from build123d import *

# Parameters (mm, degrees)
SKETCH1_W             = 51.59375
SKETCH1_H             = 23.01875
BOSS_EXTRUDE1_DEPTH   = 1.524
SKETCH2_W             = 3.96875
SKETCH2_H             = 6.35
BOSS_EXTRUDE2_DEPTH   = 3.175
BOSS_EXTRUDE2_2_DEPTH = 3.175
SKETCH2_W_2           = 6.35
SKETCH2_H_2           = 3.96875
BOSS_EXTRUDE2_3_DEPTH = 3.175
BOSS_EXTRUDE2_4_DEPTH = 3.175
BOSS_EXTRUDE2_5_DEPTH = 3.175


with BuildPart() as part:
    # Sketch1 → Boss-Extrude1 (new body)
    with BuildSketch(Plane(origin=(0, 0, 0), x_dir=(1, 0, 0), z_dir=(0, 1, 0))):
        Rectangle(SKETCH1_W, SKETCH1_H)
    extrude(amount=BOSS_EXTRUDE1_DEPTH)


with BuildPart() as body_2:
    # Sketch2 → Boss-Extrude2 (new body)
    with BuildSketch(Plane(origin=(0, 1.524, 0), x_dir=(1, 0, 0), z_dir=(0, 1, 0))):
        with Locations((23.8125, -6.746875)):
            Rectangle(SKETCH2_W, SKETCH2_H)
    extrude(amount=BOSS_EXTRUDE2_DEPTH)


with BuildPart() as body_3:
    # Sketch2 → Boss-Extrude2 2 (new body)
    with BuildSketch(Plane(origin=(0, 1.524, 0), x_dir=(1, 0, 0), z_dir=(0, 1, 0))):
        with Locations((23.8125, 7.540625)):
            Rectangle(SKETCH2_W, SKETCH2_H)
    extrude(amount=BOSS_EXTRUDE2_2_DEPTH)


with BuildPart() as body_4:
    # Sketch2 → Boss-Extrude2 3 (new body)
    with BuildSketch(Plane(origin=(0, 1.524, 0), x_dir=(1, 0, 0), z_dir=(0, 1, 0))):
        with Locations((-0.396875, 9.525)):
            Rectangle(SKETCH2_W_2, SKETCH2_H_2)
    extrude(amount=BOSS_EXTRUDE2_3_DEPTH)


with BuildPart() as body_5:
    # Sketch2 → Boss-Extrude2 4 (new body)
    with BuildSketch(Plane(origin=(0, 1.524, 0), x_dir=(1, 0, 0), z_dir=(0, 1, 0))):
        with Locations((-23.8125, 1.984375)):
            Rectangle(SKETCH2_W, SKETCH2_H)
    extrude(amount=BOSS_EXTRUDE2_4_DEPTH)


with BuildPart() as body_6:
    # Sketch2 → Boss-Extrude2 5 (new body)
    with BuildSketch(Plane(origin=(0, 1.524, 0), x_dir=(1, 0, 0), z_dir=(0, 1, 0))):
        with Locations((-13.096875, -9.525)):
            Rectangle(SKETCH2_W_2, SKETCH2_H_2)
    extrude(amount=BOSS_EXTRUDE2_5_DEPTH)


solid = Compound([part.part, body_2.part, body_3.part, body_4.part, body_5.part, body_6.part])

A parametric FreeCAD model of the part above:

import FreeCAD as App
import Part
import Sketcher
Q = App.Units.Quantity


def add_polygon(sketch, points):
    """Adds a closed chain of lines whose ends are joined by coincident constraints."""
    first, n = sketch.GeometryCount, len(points)
    for a, b in zip(points, points[1:] + points[:1]):
        sketch.addGeometry(Part.LineSegment(App.Vector(*a, 0), App.Vector(*b, 0)), False)
    for i in range(n):
        sketch.addConstraint(Sketcher.Constraint("Coincident", first + i, 2, first + (i + 1) % n, 1))

doc = App.newDocument("Part")
body = doc.addObject("PartDesign::Body", "Body")

sketch1 = body.newObject("Sketcher::SketchObject", "Sketch")
sketch1.AttachmentSupport = (doc.getObject("XZ_Plane"), [""])
sketch1.MapMode = "FlatFace"
add_polygon(sketch1, [(-25.796875, -11.509375), (-25.796875, 11.509375), (25.796875, 11.509375), (25.796875, -11.509375)])
sketch1.addConstraint([
    Sketcher.Constraint("Vertical", 0),
    Sketcher.Constraint("Horizontal", 1),
    Sketcher.Constraint("Vertical", 2),
    Sketcher.Constraint("Horizontal", 3),
    Sketcher.Constraint("Symmetric", 0, 2, 2, 2, -1, 1),
    Sketcher.Constraint("DistanceX", 1, 1, 1, 2, Q("2.03125 in")),
    Sketcher.Constraint("DistanceY", 0, 1, 0, 2, Q("0.90625 in")),
])
pad1 = body.newObject("PartDesign::Pad", "Pad")
pad1.Profile = sketch1
pad1.Length = Q("0.06 in")
pad1.Reversed = True
body2 = doc.addObject("PartDesign::Body", "Body001")

sketch2 = body2.newObject("Sketcher::SketchObject", "Sketch001")
sketch2.AttachmentSupport = (doc.getObject("XZ_Plane001"), [""])
sketch2.MapMode = "FlatFace"
sketch2.AttachmentOffset = App.Placement(App.Vector(0, 0, -0.06 * 25.4), App.Rotation())
add_polygon(sketch2, [(21.828125, 3.571875), (21.828125, 9.921875), (25.796875, 9.921875), (25.796875, 3.571875)])
sketch2.addConstraint([
    Sketcher.Constraint("Vertical", 0),
    Sketcher.Constraint("Horizontal", 1),
    Sketcher.Constraint("Vertical", 2),
    Sketcher.Constraint("Horizontal", 3),
    Sketcher.Constraint("DistanceY", 0, 1, 0, 2, Q("0.25 in")),
    Sketcher.Constraint("DistanceX", 1, 1, 1, 2, Q("0.15625 in")),
    Sketcher.Constraint("DistanceX", -1, 1, 0, 2, Q("0.859375 in")),
    Sketcher.Constraint("DistanceY", -1, 1, 0, 2, Q("0.390625 in")),
])
pad2 = body2.newObject("PartDesign::Pad", "Pad001")
pad2.Profile = sketch2
pad2.Length = Q("0.125 in")
pad2.Reversed = True
body3 = doc.addObject("PartDesign::Body", "Body002")

sketch3 = body3.newObject("Sketcher::SketchObject", "Sketch002")
sketch3.AttachmentSupport = (doc.getObject("XZ_Plane002"), [""])
sketch3.MapMode = "FlatFace"
sketch3.AttachmentOffset = App.Placement(App.Vector(0, 0, -0.06 * 25.4), App.Rotation())
add_polygon(sketch3, [(21.828125, -10.715625), (21.828125, -4.365625), (25.796875, -4.365625), (25.796875, -10.715625)])
sketch3.addConstraint([
    Sketcher.Constraint("Vertical", 0),
    Sketcher.Constraint("Horizontal", 1),
    Sketcher.Constraint("Vertical", 2),
    Sketcher.Constraint("Horizontal", 3),
    Sketcher.Constraint("DistanceY", 0, 1, 0, 2, Q("0.25 in")),
    Sketcher.Constraint("DistanceX", 1, 1, 1, 2, Q("0.15625 in")),
    Sketcher.Constraint("DistanceX", -1, 1, 0, 2, Q("0.859375 in")),
    Sketcher.Constraint("DistanceY", 0, 2, -1, 1, Q("0.171875 in")),
])
pad3 = body3.newObject("PartDesign::Pad", "Pad002")
pad3.Profile = sketch3
pad3.Length = Q("0.125 in")
pad3.Reversed = True
body4 = doc.addObject("PartDesign::Body", "Body003")

sketch4 = body4.newObject("Sketcher::SketchObject", "Sketch003")
sketch4.AttachmentSupport = (doc.getObject("XZ_Plane003"), [""])
sketch4.MapMode = "FlatFace"
sketch4.AttachmentOffset = App.Placement(App.Vector(0, 0, -0.06 * 25.4), App.Rotation())
add_polygon(sketch4, [(-3.571875, -11.509375), (-3.571875, -7.540625), (2.778125, -7.540625), (2.778125, -11.509375)])
sketch4.addConstraint([
    Sketcher.Constraint("Vertical", 0),
    Sketcher.Constraint("Horizontal", 1),
    Sketcher.Constraint("Vertical", 2),
    Sketcher.Constraint("Horizontal", 3),
    Sketcher.Constraint("DistanceX", 1, 1, 1, 2, Q("0.25 in")),
    Sketcher.Constraint("DistanceY", 0, 1, 0, 2, Q("0.15625 in")),
    Sketcher.Constraint("DistanceX", 0, 2, -1, 1, Q("0.140625 in")),
    Sketcher.Constraint("DistanceY", 0, 2, -1, 1, Q("0.296875 in")),
])
pad4 = body4.newObject("PartDesign::Pad", "Pad003")
pad4.Profile = sketch4
pad4.Length = Q("0.125 in")
pad4.Reversed = True
body5 = doc.addObject("PartDesign::Body", "Body004")

sketch5 = body5.newObject("Sketcher::SketchObject", "Sketch004")
sketch5.AttachmentSupport = (doc.getObject("XZ_Plane004"), [""])
sketch5.MapMode = "FlatFace"
sketch5.AttachmentOffset = App.Placement(App.Vector(0, 0, -0.06 * 25.4), App.Rotation())
add_polygon(sketch5, [(-25.796875, -5.159375), (-25.796875, 1.190625), (-21.828125, 1.190625), (-21.828125, -5.159375)])
sketch5.addConstraint([
    Sketcher.Constraint("Vertical", 0),
    Sketcher.Constraint("Horizontal", 1),
    Sketcher.Constraint("Vertical", 2),
    Sketcher.Constraint("Horizontal", 3),
    Sketcher.Constraint("DistanceY", 0, 1, 0, 2, Q("0.25 in")),
    Sketcher.Constraint("DistanceX", 1, 1, 1, 2, Q("0.15625 in")),
    Sketcher.Constraint("DistanceX", 0, 2, -1, 1, Q("1.015625 in")),
    Sketcher.Constraint("DistanceY", -1, 1, 0, 2, Q("0.046875 in")),
])
pad5 = body5.newObject("PartDesign::Pad", "Pad004")
pad5.Profile = sketch5
pad5.Length = Q("0.125 in")
pad5.Reversed = True
body6 = doc.addObject("PartDesign::Body", "Body005")

sketch6 = body6.newObject("Sketcher::SketchObject", "Sketch005")
sketch6.AttachmentSupport = (doc.getObject("XZ_Plane005"), [""])
sketch6.MapMode = "FlatFace"
sketch6.AttachmentOffset = App.Placement(App.Vector(0, 0, -0.06 * 25.4), App.Rotation())
add_polygon(sketch6, [(-16.271875, 7.540625), (-16.271875, 11.509375), (-9.921875, 11.509375), (-9.921875, 7.540625)])
sketch6.addConstraint([
    Sketcher.Constraint("Vertical", 0),
    Sketcher.Constraint("Horizontal", 1),
    Sketcher.Constraint("Vertical", 2),
    Sketcher.Constraint("Horizontal", 3),
    Sketcher.Constraint("DistanceX", 1, 1, 1, 2, Q("0.25 in")),
    Sketcher.Constraint("DistanceY", 0, 1, 0, 2, Q("0.15625 in")),
    Sketcher.Constraint("DistanceX", 0, 2, -1, 1, Q("0.640625 in")),
    Sketcher.Constraint("DistanceY", -1, 1, 0, 2, Q("0.453125 in")),
])
pad6 = body6.newObject("PartDesign::Pad", "Pad005")
pad6.Profile = sketch6
pad6.Length = Q("0.125 in")
pad6.Reversed = True

doc.recompute()
